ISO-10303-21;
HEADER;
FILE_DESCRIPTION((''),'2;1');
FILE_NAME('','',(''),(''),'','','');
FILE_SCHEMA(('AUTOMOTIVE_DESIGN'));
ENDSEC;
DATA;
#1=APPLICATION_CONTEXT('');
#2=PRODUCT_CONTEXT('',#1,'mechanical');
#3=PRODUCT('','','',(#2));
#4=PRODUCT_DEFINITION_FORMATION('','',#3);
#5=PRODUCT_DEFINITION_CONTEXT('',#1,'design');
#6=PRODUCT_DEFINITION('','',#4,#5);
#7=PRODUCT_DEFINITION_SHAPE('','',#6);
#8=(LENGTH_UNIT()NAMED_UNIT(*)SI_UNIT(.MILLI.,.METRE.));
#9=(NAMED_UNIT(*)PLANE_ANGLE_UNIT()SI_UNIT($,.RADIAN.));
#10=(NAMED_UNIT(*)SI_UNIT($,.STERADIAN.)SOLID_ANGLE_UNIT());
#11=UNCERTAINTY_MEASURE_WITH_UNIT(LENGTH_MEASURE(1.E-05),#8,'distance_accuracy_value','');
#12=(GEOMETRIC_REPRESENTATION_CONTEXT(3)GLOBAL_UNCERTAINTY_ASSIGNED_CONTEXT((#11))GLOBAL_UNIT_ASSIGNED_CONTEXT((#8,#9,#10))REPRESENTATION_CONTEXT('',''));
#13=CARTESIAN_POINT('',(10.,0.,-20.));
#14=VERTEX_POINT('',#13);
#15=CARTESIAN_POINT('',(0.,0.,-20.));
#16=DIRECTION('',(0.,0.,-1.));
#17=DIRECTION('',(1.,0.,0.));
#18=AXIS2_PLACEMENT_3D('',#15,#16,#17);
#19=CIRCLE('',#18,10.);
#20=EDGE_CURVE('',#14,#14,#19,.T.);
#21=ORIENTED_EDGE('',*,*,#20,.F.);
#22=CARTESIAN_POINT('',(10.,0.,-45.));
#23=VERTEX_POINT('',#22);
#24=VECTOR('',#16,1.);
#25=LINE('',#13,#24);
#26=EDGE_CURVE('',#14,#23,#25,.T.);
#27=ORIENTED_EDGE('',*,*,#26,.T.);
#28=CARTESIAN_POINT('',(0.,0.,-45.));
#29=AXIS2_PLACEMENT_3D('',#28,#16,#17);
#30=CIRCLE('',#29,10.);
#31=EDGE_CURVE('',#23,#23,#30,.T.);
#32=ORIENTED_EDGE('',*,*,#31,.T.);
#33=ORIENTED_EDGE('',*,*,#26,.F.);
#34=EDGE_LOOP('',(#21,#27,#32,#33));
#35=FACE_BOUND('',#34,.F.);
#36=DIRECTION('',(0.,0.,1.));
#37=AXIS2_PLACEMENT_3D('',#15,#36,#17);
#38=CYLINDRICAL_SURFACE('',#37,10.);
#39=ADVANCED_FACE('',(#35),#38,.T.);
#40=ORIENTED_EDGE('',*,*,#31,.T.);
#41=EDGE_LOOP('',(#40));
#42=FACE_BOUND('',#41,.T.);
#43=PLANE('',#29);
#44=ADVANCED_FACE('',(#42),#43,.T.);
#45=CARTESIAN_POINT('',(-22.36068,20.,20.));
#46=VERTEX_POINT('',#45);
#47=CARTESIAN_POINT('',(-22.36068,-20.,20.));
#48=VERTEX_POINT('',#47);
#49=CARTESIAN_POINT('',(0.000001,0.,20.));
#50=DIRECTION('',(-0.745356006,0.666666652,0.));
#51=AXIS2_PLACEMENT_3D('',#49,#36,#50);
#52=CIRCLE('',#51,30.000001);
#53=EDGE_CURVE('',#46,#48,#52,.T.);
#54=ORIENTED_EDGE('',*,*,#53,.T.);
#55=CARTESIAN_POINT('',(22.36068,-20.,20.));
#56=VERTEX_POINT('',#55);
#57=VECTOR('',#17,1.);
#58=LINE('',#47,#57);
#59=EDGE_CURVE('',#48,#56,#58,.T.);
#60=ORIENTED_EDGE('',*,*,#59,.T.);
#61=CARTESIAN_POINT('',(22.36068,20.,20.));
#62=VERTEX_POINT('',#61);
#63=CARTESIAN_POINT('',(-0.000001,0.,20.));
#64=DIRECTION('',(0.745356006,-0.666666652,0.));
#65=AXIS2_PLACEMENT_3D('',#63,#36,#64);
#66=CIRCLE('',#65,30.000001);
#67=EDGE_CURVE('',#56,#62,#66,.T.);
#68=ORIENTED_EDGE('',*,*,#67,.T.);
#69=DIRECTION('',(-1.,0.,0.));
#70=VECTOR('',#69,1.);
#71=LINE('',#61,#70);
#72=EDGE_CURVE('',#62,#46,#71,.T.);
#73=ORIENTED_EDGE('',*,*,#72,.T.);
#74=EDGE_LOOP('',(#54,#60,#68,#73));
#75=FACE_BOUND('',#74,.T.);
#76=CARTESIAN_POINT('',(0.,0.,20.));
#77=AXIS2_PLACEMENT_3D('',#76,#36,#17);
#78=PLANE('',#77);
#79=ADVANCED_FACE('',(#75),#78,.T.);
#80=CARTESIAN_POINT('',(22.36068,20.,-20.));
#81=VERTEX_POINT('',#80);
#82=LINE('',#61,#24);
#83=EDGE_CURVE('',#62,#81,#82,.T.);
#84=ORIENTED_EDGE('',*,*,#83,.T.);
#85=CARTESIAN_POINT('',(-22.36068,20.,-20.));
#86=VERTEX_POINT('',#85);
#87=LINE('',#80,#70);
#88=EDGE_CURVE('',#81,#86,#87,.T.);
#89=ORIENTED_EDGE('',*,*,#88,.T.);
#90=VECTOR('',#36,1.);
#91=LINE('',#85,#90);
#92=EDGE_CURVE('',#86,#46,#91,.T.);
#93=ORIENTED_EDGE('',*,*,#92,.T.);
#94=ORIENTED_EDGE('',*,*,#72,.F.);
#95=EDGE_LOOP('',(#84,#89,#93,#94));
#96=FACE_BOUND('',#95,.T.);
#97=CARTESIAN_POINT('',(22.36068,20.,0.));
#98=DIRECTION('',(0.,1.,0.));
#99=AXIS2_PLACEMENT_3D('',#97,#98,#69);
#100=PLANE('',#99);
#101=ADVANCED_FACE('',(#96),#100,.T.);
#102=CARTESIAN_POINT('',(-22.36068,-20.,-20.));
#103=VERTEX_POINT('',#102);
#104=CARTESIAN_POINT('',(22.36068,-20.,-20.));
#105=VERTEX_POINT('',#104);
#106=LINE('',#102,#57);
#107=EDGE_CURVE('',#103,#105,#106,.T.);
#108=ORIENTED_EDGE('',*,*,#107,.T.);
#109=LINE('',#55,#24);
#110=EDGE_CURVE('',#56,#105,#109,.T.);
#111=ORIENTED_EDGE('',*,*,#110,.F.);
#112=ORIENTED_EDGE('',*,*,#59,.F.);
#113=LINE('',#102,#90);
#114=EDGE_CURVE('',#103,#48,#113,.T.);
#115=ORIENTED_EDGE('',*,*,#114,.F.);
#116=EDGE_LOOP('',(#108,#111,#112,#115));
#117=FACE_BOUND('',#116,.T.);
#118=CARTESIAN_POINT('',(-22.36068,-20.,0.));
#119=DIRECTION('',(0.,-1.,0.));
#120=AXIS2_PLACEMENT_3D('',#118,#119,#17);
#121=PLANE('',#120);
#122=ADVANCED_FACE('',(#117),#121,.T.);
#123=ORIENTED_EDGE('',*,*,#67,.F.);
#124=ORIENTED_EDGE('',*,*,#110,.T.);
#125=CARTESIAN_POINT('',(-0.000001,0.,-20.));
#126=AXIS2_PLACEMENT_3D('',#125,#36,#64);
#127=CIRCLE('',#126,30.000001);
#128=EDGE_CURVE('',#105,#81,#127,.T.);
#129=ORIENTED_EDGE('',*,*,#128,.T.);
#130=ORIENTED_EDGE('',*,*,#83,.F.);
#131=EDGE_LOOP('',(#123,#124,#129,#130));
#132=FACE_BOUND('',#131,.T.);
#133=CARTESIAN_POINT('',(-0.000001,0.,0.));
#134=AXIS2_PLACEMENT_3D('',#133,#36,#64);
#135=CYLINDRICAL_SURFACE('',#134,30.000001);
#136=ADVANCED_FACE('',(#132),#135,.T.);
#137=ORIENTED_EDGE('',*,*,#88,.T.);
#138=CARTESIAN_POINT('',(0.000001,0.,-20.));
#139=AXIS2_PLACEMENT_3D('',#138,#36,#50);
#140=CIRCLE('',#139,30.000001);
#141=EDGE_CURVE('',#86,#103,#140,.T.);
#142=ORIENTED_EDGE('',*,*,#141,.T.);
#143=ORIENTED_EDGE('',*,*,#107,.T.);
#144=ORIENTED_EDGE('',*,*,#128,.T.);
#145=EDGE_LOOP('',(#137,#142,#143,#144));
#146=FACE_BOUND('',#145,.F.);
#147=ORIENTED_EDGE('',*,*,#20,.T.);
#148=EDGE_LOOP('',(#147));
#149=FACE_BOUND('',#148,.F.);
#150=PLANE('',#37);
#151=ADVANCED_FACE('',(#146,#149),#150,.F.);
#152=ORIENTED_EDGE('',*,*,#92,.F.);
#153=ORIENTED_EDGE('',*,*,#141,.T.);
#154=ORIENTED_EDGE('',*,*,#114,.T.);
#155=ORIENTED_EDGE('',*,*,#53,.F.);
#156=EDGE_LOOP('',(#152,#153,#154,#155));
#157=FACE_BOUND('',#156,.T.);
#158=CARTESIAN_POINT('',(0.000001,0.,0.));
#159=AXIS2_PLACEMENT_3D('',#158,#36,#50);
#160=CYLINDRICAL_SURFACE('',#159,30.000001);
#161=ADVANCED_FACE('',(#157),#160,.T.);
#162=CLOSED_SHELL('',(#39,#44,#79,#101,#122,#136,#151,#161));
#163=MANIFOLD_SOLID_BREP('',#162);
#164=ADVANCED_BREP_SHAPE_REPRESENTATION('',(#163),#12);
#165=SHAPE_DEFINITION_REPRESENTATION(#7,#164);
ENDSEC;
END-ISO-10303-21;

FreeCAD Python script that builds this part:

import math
import FreeCAD as App
import Part
import Sketcher
from FreeCAD import Vector

doc = App.newDocument("Part")
body = doc.addObject("PartDesign::Body", "Body")

# Sketch on XY plane
sketch1 = body.newObject("Sketcher::SketchObject", "Sketch")
sketch1.AttachmentSupport = (doc.getObject("XY_Plane"), [""])
sketch1.MapMode = "FlatFace"
sketch1.addGeometry([
    Part.LineSegment(Vector(22, 20, 0), Vector(-22, 20, 0)),
    Part.ArcOfCircle(Part.Circle(Vector(0, 0, 0), Vector(0, 0, 1), 30), math.radians(138), math.radians(222)),
    Part.LineSegment(Vector(-22, -20, 0), Vector(22, -20, 0)),
    Part.ArcOfCircle(Part.Circle(Vector(0, 0, 0), Vector(0, 0, 1), 30), math.radians(-42), math.radians(42)),
], False)
sketch1.addConstraint([
    Sketcher.Constraint("Coincident", 0, 2, 1, 1),
    Sketcher.Constraint("Coincident", 1, 2, 2, 1),
    Sketcher.Constraint("Coincident", 2, 2, 3, 1),
    Sketcher.Constraint("Coincident", 3, 2, 0, 1),
    Sketcher.Constraint("Horizontal", 0),
    Sketcher.Constraint("Horizontal", 2),
    Sketcher.Constraint("Coincident", 1, 3, -1, 1),
    Sketcher.Constraint("Coincident", 3, 3, -1, 1),
    Sketcher.Constraint("Equal", 1, 3),
    Sketcher.Constraint("Vertical", 0, 2, 1, 2),
    Sketcher.Constraint("Radius", 1, 30.000001),
    Sketcher.Constraint("DistanceY", -1, 1, 0, 2, 20.0),
])
pad1 = body.newObject("PartDesign::Pad", "Pad")
pad1.Profile = sketch1
pad1.Length = 40
pad1.Midplane = True

# Sketch on XY plane
sketch2 = body.newObject("Sketcher::SketchObject", "Sketch001")
sketch2.AttachmentSupport = (doc.getObject("XY_Plane"), [""])
sketch2.MapMode = "FlatFace"
sketch2.AttachmentOffset = App.Placement(Vector(0, 0, -20), App.Rotation())
sketch2.addGeometry(Part.Circle(Vector(0, 0, 0), Vector(0, 0, 1), 10), False)
sketch2.addConstraint([
    Sketcher.Constraint("Coincident", 0, 3, -1, 1),
    Sketcher.Constraint("Diameter", 0, 20.0),
])
pad2 = body.newObject("PartDesign::Pad", "Pad001")
pad2.Profile = sketch2
pad2.Length = 25
pad2.Reversed = True

doc.recompute()
